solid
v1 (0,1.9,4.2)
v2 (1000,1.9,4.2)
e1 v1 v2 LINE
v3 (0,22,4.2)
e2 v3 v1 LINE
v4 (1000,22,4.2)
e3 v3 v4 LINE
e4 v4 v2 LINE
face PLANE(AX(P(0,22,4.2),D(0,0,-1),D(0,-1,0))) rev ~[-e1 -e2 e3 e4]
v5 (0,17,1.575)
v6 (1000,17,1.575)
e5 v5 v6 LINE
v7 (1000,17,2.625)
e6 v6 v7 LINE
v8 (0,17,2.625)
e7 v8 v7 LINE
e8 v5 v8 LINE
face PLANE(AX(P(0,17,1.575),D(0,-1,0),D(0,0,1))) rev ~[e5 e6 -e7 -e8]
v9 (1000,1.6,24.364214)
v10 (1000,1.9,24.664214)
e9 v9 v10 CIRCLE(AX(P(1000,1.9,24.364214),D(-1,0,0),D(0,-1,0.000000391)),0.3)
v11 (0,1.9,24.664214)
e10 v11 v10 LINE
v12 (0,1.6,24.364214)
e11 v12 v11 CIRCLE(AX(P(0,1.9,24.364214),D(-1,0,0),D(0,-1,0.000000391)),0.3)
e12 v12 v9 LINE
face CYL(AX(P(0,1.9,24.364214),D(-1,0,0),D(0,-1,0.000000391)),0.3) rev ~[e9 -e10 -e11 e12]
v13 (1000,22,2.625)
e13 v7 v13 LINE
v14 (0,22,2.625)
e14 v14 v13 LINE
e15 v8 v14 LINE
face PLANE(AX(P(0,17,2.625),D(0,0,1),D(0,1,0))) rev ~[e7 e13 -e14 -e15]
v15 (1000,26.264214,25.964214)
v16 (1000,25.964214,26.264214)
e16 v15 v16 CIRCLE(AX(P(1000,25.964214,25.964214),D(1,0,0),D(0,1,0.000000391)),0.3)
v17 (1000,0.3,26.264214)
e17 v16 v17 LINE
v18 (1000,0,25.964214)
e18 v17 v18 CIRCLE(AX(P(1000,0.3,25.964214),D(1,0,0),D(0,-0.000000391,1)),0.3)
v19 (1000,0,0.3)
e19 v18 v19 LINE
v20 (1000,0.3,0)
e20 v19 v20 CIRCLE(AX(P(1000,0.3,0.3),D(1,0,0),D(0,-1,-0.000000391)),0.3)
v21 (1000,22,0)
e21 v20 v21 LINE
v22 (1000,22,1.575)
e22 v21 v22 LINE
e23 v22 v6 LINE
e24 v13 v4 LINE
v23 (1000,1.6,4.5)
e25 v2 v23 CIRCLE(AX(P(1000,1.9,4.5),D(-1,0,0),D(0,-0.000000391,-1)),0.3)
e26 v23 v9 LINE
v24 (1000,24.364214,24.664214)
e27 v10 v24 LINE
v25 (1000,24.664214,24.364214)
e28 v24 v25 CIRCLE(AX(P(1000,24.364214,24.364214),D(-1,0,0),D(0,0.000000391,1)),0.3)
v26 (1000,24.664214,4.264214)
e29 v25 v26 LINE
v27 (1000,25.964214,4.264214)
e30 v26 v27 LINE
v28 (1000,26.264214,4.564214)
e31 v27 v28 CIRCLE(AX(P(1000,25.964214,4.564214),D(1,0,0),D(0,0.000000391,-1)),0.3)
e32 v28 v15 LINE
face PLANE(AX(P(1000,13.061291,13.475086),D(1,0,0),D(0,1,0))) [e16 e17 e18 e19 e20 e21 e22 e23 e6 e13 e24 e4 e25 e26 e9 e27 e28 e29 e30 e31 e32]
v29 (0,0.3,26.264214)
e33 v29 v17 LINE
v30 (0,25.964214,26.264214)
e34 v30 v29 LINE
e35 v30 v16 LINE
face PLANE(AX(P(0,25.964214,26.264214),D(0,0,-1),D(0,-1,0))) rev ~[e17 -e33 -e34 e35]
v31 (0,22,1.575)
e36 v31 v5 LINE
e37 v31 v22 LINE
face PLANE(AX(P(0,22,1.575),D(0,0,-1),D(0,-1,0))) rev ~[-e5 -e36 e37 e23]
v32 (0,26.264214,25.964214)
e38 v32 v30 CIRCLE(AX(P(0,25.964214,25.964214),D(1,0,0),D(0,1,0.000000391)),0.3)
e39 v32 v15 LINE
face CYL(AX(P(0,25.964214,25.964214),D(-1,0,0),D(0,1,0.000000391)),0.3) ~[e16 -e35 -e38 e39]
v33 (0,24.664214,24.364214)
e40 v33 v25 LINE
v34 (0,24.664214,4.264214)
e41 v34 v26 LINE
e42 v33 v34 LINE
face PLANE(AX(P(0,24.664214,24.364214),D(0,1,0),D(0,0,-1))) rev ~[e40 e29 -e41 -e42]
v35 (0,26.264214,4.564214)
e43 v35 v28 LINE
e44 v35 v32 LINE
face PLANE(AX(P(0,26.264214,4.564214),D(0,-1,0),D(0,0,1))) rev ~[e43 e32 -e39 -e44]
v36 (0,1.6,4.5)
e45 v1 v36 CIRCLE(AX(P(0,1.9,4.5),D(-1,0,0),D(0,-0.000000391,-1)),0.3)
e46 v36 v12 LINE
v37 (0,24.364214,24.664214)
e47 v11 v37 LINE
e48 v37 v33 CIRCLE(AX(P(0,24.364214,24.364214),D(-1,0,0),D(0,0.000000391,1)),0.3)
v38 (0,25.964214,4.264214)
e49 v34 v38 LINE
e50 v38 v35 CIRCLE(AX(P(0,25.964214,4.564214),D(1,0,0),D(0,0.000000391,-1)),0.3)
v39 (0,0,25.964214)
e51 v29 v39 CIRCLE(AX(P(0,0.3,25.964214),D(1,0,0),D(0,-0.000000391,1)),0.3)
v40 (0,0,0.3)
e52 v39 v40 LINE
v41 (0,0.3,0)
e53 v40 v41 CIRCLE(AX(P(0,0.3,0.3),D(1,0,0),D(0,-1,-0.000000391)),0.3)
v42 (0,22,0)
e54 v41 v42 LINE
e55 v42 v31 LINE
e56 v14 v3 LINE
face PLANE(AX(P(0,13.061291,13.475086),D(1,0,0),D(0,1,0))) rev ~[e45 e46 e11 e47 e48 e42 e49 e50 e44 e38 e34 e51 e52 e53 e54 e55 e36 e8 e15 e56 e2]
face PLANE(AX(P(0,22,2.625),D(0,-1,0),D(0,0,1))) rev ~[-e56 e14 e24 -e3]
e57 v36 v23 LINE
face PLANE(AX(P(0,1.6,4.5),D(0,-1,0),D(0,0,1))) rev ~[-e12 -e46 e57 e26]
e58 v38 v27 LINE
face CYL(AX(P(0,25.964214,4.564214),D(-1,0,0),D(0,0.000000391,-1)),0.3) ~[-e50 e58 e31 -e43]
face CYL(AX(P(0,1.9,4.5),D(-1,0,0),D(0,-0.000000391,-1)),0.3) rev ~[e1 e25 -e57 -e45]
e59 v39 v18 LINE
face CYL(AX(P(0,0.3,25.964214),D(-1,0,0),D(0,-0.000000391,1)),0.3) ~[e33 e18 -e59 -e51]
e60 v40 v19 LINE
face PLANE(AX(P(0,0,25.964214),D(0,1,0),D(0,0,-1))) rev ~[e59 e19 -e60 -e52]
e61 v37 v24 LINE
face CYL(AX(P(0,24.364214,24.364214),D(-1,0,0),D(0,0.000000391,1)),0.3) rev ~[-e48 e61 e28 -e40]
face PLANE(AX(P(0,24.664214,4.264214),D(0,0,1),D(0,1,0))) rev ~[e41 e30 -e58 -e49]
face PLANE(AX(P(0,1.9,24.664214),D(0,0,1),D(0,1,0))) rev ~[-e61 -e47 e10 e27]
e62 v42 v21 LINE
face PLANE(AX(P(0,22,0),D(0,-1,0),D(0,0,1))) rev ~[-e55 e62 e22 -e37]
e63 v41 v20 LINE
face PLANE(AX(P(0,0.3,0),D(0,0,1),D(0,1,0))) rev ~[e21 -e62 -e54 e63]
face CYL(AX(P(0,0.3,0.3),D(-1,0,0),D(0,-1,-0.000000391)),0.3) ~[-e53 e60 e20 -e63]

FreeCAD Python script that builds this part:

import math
import FreeCAD as App
import Part
import Sketcher
from FreeCAD import Vector

doc = App.newDocument("Part")
body = doc.addObject("PartDesign::Body", "Body")

sketch1 = body.newObject("Sketcher::SketchObject", "Sketch")
sketch1.AttachmentSupport = (doc.getObject("YZ_Plane"), [""])
sketch1.MapMode = "FlatFace"
sketch1.addGeometry([
    Part.ArcOfCircle(Part.Circle(Vector(25.96, 25.96, 0), Vector(0, 0, 1), 0.3), math.radians(0), math.radians(90)),
    Part.LineSegment(Vector(25.96, 26.26, 0), Vector(0.3, 26.26, 0)),
    Part.ArcOfCircle(Part.Circle(Vector(0.3, 25.96, 0), Vector(0, 0, 1), 0.3), math.radians(90), math.radians(180)),
    Part.LineSegment(Vector(0, 25.96, 0), Vector(0, 0.3, 0)),
    Part.ArcOfCircle(Part.Circle(Vector(0.3, 0.3, 0), Vector(0, 0, 1), 0.3), math.radians(-180), math.radians(-90)),
    Part.LineSegment(Vector(0.3, 0, 0), Vector(22, 0, 0)),
    Part.LineSegment(Vector(22, 0, 0), Vector(22, 1.57, 0)),
    Part.LineSegment(Vector(22, 1.57, 0), Vector(17, 1.57, 0)),
    Part.LineSegment(Vector(17, 1.57, 0), Vector(17, 2.62, 0)),
    Part.LineSegment(Vector(17, 2.62, 0), Vector(22, 2.62, 0)),
    Part.LineSegment(Vector(22, 2.62, 0), Vector(22, 4.2, 0)),
    Part.LineSegment(Vector(22, 4.2, 0), Vector(1.9, 4.2, 0)),
    Part.ArcOfCircle(Part.Circle(Vector(1.9, 4.5, 0), Vector(0, 0, 1), 0.3), math.radians(-180), math.radians(-90)),
    Part.LineSegment(Vector(1.6, 4.5, 0), Vector(1.6, 24.36, 0)),
    Part.ArcOfCircle(Part.Circle(Vector(1.9, 24.36, 0), Vector(0, 0, 1), 0.3), math.radians(90), math.radians(180)),
    Part.LineSegment(Vector(1.9, 24.66, 0), Vector(24.36, 24.66, 0)),
    Part.ArcOfCircle(Part.Circle(Vector(24.36, 24.36, 0), Vector(0, 0, 1), 0.3), math.radians(0), math.radians(90)),
    Part.LineSegment(Vector(24.66, 24.36, 0), Vector(24.66, 4.26, 0)),
    Part.LineSegment(Vector(24.66, 4.26, 0), Vector(25.96, 4.26, 0)),
    Part.ArcOfCircle(Part.Circle(Vector(25.96, 4.56, 0), Vector(0, 0, 1), 0.3), math.radians(-90), math.radians(0)),
    Part.LineSegment(Vector(26.26, 4.56, 0), Vector(26.26, 25.96, 0)),
], False)
sketch1.addConstraint([
    Sketcher.Constraint("Tangent", 0, 2, 1, 1),
    Sketcher.Constraint("Tangent", 1, 2, 2, 1),
    Sketcher.Constraint("Tangent", 2, 2, 3, 1),
    Sketcher.Constraint("Tangent", 3, 2, 4, 1),
    Sketcher.Constraint("Tangent", 4, 2, 5, 1),
    Sketcher.Constraint("Coincident", 5, 2, 6, 1),
    Sketcher.Constraint("Coincident", 6, 2, 7, 1),
    Sketcher.Constraint("Coincident", 7, 2, 8, 1),
    Sketcher.Constraint("Coincident", 8, 2, 9, 1),
    Sketcher.Constraint("Coincident", 9, 2, 10, 1),
    Sketcher.Constraint("Coincident", 10, 2, 11, 1),
    Sketcher.Constraint("Tangent", 11, 2, 12, 2),
    Sketcher.Constraint("Tangent", 12, 1, 13, 1),
    Sketcher.Constraint("Tangent", 13, 2, 14, 2),
    Sketcher.Constraint("Tangent", 14, 1, 15, 1),
    Sketcher.Constraint("Tangent", 15, 2, 16, 2),
    Sketcher.Constraint("Tangent", 16, 1, 17, 1),
    Sketcher.Constraint("Coincident", 17, 2, 18, 1),
    Sketcher.Constraint("Tangent", 18, 2, 19, 1),
    Sketcher.Constraint("Tangent", 19, 2, 20, 1),
    Sketcher.Constraint("Tangent", 20, 2, 0, 1),
    Sketcher.Constraint("Horizontal", 1),
    Sketcher.Constraint("Vertical", 3),
    Sketcher.Constraint("Horizontal", 5),
    Sketcher.Constraint("Vertical", 6),
    Sketcher.Constraint("Horizontal", 7),
    Sketcher.Constraint("Vertical", 8),
    Sketcher.Constraint("Horizontal", 9),
    Sketcher.Constraint("Vertical", 10),
    Sketcher.Constraint("Horizontal", 11),
    Sketcher.Constraint("Vertical", 13),
    Sketcher.Constraint("Horizontal", 15),
    Sketcher.Constraint("Vertical", 17),
    Sketcher.Constraint("Horizontal", 18),
    Sketcher.Constraint("Vertical", 20),
    Sketcher.Constraint("Equal", 0, 2),
    Sketcher.Constraint("Equal", 2, 4),
    Sketcher.Constraint("Equal", 4, 12),
    Sketcher.Constraint("Equal", 12, 14),
    Sketcher.Constraint("Equal", 14, 16),
    Sketcher.Constraint("Equal", 16, 19),
    Sketcher.Constraint("PointOnObject", 2, 2, -2),
    Sketcher.Constraint("PointOnObject", 4, 2, -1),
    Sketcher.Constraint("Vertical", 6, 2, 9, 2),
    Sketcher.Constraint("Equal", 1, 3),
    Sketcher.Constraint("Equal", 6, 10),
    Sketcher.Constraint("Equal", 11, 17),
    Sketcher.Constraint("Radius", 0, 0.3),
    Sketcher.Constraint("DistanceX", 7, 2, 7, 1, 5.0),
    Sketcher.Constraint("DistanceX", 5, 1, 5, 2, 21.7),
    Sketcher.Constraint("DistanceX", 11, 2, 11, 1, 20.1),
    Sketcher.Constraint("DistanceX", 18, 1, 18, 2, 1.3),
    Sketcher.Constraint("DistanceY", 20, 1, 20, 2, 21.4),
    Sketcher.Constraint("DistanceY", 8, 1, 8, 2, 1.05),
    Sketcher.Constraint("DistanceY", -1, 1, 12, 3, 4.5),
    Sketcher.Constraint("DistanceX", 1, 2, 1, 1, 25.664214),
])
pad1 = body.newObject("PartDesign::Pad", "Pad")
pad1.Profile = sketch1
pad1.Length = 1000

doc.recompute()
